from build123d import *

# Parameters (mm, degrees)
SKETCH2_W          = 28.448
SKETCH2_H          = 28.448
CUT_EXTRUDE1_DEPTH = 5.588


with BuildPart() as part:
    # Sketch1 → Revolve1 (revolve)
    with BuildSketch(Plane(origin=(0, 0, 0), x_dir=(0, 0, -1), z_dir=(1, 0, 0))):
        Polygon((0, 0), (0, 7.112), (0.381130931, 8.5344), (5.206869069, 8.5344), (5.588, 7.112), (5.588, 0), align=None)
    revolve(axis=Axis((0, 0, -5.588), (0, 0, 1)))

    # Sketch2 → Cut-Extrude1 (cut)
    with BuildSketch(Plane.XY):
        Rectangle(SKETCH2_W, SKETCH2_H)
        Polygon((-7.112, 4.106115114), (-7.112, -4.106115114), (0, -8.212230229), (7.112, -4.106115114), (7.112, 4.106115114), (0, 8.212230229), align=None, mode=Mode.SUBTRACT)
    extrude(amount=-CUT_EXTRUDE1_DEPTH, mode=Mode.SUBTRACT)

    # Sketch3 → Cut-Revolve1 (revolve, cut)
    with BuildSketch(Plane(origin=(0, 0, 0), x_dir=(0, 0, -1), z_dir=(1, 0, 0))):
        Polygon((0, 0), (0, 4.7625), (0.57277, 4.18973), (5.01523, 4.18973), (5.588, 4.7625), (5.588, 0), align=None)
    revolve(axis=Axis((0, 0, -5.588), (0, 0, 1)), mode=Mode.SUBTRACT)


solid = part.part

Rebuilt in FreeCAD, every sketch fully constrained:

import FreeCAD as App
import Part
import Sketcher
Q = App.Units.Quantity


def add_polygon(sketch, points):
    """Adds a closed chain of lines whose ends are joined by coincident constraints."""
    first, n = sketch.GeometryCount, len(points)
    for a, b in zip(points, points[1:] + points[:1]):
        sketch.addGeometry(Part.LineSegment(App.Vector(*a, 0), App.Vector(*b, 0)), False)
    for i in range(n):
        sketch.addConstraint(Sketcher.Constraint("Coincident", first + i, 2, first + (i + 1) % n, 1))

doc = App.newDocument("Part")
body = doc.addObject("PartDesign::Body", "Body")

sketch1 = body.newObject("Sketcher::SketchObject", "Sketch")
sketch1.AttachmentSupport = (doc.getObject("YZ_Plane"), [""])
sketch1.MapMode = "FlatFace"
add_polygon(sketch1, [(7.1, 0), (0, 0), (0, -5.6), (7.1, -5.6), (8.5, -5.2), (8.5, -0.4)])
sketch1.addConstraint(Sketcher.Constraint("Horizontal", 0))
sketch1.addConstraint(Sketcher.Constraint("Vertical", 1))
sketch1.addConstraint(Sketcher.Constraint("Horizontal", 2))
sketch1.addConstraint(Sketcher.Constraint("Vertical", 4))
sketch1.addConstraint(Sketcher.Constraint("Coincident", 0, 2, -1, 1))
sketch1.addConstraint(Sketcher.Constraint("Vertical", 2, 2, 5, 2))
sketch1.addConstraint(Sketcher.Constraint("Equal", 3, 5))
sketch1.addConstraint(Sketcher.Constraint("Angle", 3, Q("15 deg")))
sketch1.addConstraint(Sketcher.Constraint("DistanceX", 0, 2, 0, 1, Q("0.28 in")))
sketch1.addConstraint(Sketcher.Constraint("DistanceY", 1, 2, 1, 1, Q("0.22 in")))
sketch1.addConstraint(Sketcher.Constraint("DistanceX", -1, 1, 3, 2, Q("0.336 in")))
revolution = body.newObject("PartDesign::Revolution", "Revolution")
revolution.Profile = sketch1
revolution.ReferenceAxis = (sketch1, ["V_Axis"])
revolution.Angle = 360

sketch2 = body.newObject("Sketcher::SketchObject", "Sketch001")
sketch2.AttachmentSupport = (doc.getObject("XY_Plane"), [""])
sketch2.MapMode = "FlatFace"
add_polygon(sketch2, [(-14, 14), (-14, -14), (14, -14), (14, 14)])
add_polygon(sketch2, [(-7, -4), (-7, 4), (0, 8), (7, 4), (7, -4), (0, -8)])
sketch2.addConstraint(Sketcher.Constraint("Vertical", 0))
sketch2.addConstraint(Sketcher.Constraint("Horizontal", 1))
sketch2.addConstraint(Sketcher.Constraint("Vertical", 2))
sketch2.addConstraint(Sketcher.Constraint("Horizontal", 3))
sketch2.addConstraint(Sketcher.Constraint("Vertical", 4))
sketch2.addConstraint(Sketcher.Constraint("Vertical", 7))
sketch2.addConstraint(Sketcher.Constraint("Symmetric", 0, 2, 2, 2, -1, 1))
sketch2.addConstraint(Sketcher.Constraint("Symmetric", 4, 2, 7, 2, -1, 1))
sketch2.addConstraint(Sketcher.Constraint("Symmetric", 5, 2, 8, 2, -1, 1))
sketch2.addConstraint(Sketcher.Constraint("PointOnObject", 5, 2, -2))
sketch2.addConstraint(Sketcher.Constraint("Parallel", 6, 9))
sketch2.addConstraint(Sketcher.Constraint("Horizontal", 4, 2, 6, 2))
sketch2.addConstraint(Sketcher.Constraint("Equal", 3, 0))
sketch2.addConstraint(Sketcher.Constraint("Angle", 5, Q("30 deg")))
sketch2.addConstraint(Sketcher.Constraint("DistanceX", 1, 1, 1, 2, Q("1.12 in")))
sketch2.addConstraint(Sketcher.Constraint("DistanceX", 4, 2, -1, 1, Q("0.28 in")))
sketch2.addConstraint(Sketcher.Constraint("DistanceY", 4, 1, 4, 2, 8.21223))
pocket1 = body.newObject("PartDesign::Pocket", "Pocket")
pocket1.Profile = sketch2
pocket1.Length = Q("0.22 in")

sketch3 = body.newObject("Sketcher::SketchObject", "Sketch002")
sketch3.AttachmentSupport = (doc.getObject("YZ_Plane"), [""])
sketch3.MapMode = "FlatFace"
add_polygon(sketch3, [(4.8, 0), (0, 0), (0, -5.6), (4.8, -5.6), (4.2, -5), (4.2, -0.6)])
sketch3.addConstraint(Sketcher.Constraint("Horizontal", 0))
sketch3.addConstraint(Sketcher.Constraint("Vertical", 1))
sketch3.addConstraint(Sketcher.Constraint("Horizontal", 2))
sketch3.addConstraint(Sketcher.Constraint("Vertical", 4))
sketch3.addConstraint(Sketcher.Constraint("Coincident", 0, 2, -1, 1))
sketch3.addConstraint(Sketcher.Constraint("Perpendicular", 3, 5))
sketch3.addConstraint(Sketcher.Constraint("Vertical", 2, 2, 5, 2))
sketch3.addConstraint(Sketcher.Constraint("Equal", 3, 5))
sketch3.addConstraint(Sketcher.Constraint("DistanceY", 1, 2, 1, 1, Q("0.22 in")))
sketch3.addConstraint(Sketcher.Constraint("DistanceX", 0, 2, 0, 1, Q("0.1875 in")))
sketch3.addConstraint(Sketcher.Constraint("DistanceY", 4, 1, 4, 2, Q("0.1749 in")))
groove = body.newObject("PartDesign::Groove", "Groove")
groove.Profile = sketch3
groove.ReferenceAxis = (sketch3, ["V_Axis"])
groove.Angle = 360

doc.recompute()
